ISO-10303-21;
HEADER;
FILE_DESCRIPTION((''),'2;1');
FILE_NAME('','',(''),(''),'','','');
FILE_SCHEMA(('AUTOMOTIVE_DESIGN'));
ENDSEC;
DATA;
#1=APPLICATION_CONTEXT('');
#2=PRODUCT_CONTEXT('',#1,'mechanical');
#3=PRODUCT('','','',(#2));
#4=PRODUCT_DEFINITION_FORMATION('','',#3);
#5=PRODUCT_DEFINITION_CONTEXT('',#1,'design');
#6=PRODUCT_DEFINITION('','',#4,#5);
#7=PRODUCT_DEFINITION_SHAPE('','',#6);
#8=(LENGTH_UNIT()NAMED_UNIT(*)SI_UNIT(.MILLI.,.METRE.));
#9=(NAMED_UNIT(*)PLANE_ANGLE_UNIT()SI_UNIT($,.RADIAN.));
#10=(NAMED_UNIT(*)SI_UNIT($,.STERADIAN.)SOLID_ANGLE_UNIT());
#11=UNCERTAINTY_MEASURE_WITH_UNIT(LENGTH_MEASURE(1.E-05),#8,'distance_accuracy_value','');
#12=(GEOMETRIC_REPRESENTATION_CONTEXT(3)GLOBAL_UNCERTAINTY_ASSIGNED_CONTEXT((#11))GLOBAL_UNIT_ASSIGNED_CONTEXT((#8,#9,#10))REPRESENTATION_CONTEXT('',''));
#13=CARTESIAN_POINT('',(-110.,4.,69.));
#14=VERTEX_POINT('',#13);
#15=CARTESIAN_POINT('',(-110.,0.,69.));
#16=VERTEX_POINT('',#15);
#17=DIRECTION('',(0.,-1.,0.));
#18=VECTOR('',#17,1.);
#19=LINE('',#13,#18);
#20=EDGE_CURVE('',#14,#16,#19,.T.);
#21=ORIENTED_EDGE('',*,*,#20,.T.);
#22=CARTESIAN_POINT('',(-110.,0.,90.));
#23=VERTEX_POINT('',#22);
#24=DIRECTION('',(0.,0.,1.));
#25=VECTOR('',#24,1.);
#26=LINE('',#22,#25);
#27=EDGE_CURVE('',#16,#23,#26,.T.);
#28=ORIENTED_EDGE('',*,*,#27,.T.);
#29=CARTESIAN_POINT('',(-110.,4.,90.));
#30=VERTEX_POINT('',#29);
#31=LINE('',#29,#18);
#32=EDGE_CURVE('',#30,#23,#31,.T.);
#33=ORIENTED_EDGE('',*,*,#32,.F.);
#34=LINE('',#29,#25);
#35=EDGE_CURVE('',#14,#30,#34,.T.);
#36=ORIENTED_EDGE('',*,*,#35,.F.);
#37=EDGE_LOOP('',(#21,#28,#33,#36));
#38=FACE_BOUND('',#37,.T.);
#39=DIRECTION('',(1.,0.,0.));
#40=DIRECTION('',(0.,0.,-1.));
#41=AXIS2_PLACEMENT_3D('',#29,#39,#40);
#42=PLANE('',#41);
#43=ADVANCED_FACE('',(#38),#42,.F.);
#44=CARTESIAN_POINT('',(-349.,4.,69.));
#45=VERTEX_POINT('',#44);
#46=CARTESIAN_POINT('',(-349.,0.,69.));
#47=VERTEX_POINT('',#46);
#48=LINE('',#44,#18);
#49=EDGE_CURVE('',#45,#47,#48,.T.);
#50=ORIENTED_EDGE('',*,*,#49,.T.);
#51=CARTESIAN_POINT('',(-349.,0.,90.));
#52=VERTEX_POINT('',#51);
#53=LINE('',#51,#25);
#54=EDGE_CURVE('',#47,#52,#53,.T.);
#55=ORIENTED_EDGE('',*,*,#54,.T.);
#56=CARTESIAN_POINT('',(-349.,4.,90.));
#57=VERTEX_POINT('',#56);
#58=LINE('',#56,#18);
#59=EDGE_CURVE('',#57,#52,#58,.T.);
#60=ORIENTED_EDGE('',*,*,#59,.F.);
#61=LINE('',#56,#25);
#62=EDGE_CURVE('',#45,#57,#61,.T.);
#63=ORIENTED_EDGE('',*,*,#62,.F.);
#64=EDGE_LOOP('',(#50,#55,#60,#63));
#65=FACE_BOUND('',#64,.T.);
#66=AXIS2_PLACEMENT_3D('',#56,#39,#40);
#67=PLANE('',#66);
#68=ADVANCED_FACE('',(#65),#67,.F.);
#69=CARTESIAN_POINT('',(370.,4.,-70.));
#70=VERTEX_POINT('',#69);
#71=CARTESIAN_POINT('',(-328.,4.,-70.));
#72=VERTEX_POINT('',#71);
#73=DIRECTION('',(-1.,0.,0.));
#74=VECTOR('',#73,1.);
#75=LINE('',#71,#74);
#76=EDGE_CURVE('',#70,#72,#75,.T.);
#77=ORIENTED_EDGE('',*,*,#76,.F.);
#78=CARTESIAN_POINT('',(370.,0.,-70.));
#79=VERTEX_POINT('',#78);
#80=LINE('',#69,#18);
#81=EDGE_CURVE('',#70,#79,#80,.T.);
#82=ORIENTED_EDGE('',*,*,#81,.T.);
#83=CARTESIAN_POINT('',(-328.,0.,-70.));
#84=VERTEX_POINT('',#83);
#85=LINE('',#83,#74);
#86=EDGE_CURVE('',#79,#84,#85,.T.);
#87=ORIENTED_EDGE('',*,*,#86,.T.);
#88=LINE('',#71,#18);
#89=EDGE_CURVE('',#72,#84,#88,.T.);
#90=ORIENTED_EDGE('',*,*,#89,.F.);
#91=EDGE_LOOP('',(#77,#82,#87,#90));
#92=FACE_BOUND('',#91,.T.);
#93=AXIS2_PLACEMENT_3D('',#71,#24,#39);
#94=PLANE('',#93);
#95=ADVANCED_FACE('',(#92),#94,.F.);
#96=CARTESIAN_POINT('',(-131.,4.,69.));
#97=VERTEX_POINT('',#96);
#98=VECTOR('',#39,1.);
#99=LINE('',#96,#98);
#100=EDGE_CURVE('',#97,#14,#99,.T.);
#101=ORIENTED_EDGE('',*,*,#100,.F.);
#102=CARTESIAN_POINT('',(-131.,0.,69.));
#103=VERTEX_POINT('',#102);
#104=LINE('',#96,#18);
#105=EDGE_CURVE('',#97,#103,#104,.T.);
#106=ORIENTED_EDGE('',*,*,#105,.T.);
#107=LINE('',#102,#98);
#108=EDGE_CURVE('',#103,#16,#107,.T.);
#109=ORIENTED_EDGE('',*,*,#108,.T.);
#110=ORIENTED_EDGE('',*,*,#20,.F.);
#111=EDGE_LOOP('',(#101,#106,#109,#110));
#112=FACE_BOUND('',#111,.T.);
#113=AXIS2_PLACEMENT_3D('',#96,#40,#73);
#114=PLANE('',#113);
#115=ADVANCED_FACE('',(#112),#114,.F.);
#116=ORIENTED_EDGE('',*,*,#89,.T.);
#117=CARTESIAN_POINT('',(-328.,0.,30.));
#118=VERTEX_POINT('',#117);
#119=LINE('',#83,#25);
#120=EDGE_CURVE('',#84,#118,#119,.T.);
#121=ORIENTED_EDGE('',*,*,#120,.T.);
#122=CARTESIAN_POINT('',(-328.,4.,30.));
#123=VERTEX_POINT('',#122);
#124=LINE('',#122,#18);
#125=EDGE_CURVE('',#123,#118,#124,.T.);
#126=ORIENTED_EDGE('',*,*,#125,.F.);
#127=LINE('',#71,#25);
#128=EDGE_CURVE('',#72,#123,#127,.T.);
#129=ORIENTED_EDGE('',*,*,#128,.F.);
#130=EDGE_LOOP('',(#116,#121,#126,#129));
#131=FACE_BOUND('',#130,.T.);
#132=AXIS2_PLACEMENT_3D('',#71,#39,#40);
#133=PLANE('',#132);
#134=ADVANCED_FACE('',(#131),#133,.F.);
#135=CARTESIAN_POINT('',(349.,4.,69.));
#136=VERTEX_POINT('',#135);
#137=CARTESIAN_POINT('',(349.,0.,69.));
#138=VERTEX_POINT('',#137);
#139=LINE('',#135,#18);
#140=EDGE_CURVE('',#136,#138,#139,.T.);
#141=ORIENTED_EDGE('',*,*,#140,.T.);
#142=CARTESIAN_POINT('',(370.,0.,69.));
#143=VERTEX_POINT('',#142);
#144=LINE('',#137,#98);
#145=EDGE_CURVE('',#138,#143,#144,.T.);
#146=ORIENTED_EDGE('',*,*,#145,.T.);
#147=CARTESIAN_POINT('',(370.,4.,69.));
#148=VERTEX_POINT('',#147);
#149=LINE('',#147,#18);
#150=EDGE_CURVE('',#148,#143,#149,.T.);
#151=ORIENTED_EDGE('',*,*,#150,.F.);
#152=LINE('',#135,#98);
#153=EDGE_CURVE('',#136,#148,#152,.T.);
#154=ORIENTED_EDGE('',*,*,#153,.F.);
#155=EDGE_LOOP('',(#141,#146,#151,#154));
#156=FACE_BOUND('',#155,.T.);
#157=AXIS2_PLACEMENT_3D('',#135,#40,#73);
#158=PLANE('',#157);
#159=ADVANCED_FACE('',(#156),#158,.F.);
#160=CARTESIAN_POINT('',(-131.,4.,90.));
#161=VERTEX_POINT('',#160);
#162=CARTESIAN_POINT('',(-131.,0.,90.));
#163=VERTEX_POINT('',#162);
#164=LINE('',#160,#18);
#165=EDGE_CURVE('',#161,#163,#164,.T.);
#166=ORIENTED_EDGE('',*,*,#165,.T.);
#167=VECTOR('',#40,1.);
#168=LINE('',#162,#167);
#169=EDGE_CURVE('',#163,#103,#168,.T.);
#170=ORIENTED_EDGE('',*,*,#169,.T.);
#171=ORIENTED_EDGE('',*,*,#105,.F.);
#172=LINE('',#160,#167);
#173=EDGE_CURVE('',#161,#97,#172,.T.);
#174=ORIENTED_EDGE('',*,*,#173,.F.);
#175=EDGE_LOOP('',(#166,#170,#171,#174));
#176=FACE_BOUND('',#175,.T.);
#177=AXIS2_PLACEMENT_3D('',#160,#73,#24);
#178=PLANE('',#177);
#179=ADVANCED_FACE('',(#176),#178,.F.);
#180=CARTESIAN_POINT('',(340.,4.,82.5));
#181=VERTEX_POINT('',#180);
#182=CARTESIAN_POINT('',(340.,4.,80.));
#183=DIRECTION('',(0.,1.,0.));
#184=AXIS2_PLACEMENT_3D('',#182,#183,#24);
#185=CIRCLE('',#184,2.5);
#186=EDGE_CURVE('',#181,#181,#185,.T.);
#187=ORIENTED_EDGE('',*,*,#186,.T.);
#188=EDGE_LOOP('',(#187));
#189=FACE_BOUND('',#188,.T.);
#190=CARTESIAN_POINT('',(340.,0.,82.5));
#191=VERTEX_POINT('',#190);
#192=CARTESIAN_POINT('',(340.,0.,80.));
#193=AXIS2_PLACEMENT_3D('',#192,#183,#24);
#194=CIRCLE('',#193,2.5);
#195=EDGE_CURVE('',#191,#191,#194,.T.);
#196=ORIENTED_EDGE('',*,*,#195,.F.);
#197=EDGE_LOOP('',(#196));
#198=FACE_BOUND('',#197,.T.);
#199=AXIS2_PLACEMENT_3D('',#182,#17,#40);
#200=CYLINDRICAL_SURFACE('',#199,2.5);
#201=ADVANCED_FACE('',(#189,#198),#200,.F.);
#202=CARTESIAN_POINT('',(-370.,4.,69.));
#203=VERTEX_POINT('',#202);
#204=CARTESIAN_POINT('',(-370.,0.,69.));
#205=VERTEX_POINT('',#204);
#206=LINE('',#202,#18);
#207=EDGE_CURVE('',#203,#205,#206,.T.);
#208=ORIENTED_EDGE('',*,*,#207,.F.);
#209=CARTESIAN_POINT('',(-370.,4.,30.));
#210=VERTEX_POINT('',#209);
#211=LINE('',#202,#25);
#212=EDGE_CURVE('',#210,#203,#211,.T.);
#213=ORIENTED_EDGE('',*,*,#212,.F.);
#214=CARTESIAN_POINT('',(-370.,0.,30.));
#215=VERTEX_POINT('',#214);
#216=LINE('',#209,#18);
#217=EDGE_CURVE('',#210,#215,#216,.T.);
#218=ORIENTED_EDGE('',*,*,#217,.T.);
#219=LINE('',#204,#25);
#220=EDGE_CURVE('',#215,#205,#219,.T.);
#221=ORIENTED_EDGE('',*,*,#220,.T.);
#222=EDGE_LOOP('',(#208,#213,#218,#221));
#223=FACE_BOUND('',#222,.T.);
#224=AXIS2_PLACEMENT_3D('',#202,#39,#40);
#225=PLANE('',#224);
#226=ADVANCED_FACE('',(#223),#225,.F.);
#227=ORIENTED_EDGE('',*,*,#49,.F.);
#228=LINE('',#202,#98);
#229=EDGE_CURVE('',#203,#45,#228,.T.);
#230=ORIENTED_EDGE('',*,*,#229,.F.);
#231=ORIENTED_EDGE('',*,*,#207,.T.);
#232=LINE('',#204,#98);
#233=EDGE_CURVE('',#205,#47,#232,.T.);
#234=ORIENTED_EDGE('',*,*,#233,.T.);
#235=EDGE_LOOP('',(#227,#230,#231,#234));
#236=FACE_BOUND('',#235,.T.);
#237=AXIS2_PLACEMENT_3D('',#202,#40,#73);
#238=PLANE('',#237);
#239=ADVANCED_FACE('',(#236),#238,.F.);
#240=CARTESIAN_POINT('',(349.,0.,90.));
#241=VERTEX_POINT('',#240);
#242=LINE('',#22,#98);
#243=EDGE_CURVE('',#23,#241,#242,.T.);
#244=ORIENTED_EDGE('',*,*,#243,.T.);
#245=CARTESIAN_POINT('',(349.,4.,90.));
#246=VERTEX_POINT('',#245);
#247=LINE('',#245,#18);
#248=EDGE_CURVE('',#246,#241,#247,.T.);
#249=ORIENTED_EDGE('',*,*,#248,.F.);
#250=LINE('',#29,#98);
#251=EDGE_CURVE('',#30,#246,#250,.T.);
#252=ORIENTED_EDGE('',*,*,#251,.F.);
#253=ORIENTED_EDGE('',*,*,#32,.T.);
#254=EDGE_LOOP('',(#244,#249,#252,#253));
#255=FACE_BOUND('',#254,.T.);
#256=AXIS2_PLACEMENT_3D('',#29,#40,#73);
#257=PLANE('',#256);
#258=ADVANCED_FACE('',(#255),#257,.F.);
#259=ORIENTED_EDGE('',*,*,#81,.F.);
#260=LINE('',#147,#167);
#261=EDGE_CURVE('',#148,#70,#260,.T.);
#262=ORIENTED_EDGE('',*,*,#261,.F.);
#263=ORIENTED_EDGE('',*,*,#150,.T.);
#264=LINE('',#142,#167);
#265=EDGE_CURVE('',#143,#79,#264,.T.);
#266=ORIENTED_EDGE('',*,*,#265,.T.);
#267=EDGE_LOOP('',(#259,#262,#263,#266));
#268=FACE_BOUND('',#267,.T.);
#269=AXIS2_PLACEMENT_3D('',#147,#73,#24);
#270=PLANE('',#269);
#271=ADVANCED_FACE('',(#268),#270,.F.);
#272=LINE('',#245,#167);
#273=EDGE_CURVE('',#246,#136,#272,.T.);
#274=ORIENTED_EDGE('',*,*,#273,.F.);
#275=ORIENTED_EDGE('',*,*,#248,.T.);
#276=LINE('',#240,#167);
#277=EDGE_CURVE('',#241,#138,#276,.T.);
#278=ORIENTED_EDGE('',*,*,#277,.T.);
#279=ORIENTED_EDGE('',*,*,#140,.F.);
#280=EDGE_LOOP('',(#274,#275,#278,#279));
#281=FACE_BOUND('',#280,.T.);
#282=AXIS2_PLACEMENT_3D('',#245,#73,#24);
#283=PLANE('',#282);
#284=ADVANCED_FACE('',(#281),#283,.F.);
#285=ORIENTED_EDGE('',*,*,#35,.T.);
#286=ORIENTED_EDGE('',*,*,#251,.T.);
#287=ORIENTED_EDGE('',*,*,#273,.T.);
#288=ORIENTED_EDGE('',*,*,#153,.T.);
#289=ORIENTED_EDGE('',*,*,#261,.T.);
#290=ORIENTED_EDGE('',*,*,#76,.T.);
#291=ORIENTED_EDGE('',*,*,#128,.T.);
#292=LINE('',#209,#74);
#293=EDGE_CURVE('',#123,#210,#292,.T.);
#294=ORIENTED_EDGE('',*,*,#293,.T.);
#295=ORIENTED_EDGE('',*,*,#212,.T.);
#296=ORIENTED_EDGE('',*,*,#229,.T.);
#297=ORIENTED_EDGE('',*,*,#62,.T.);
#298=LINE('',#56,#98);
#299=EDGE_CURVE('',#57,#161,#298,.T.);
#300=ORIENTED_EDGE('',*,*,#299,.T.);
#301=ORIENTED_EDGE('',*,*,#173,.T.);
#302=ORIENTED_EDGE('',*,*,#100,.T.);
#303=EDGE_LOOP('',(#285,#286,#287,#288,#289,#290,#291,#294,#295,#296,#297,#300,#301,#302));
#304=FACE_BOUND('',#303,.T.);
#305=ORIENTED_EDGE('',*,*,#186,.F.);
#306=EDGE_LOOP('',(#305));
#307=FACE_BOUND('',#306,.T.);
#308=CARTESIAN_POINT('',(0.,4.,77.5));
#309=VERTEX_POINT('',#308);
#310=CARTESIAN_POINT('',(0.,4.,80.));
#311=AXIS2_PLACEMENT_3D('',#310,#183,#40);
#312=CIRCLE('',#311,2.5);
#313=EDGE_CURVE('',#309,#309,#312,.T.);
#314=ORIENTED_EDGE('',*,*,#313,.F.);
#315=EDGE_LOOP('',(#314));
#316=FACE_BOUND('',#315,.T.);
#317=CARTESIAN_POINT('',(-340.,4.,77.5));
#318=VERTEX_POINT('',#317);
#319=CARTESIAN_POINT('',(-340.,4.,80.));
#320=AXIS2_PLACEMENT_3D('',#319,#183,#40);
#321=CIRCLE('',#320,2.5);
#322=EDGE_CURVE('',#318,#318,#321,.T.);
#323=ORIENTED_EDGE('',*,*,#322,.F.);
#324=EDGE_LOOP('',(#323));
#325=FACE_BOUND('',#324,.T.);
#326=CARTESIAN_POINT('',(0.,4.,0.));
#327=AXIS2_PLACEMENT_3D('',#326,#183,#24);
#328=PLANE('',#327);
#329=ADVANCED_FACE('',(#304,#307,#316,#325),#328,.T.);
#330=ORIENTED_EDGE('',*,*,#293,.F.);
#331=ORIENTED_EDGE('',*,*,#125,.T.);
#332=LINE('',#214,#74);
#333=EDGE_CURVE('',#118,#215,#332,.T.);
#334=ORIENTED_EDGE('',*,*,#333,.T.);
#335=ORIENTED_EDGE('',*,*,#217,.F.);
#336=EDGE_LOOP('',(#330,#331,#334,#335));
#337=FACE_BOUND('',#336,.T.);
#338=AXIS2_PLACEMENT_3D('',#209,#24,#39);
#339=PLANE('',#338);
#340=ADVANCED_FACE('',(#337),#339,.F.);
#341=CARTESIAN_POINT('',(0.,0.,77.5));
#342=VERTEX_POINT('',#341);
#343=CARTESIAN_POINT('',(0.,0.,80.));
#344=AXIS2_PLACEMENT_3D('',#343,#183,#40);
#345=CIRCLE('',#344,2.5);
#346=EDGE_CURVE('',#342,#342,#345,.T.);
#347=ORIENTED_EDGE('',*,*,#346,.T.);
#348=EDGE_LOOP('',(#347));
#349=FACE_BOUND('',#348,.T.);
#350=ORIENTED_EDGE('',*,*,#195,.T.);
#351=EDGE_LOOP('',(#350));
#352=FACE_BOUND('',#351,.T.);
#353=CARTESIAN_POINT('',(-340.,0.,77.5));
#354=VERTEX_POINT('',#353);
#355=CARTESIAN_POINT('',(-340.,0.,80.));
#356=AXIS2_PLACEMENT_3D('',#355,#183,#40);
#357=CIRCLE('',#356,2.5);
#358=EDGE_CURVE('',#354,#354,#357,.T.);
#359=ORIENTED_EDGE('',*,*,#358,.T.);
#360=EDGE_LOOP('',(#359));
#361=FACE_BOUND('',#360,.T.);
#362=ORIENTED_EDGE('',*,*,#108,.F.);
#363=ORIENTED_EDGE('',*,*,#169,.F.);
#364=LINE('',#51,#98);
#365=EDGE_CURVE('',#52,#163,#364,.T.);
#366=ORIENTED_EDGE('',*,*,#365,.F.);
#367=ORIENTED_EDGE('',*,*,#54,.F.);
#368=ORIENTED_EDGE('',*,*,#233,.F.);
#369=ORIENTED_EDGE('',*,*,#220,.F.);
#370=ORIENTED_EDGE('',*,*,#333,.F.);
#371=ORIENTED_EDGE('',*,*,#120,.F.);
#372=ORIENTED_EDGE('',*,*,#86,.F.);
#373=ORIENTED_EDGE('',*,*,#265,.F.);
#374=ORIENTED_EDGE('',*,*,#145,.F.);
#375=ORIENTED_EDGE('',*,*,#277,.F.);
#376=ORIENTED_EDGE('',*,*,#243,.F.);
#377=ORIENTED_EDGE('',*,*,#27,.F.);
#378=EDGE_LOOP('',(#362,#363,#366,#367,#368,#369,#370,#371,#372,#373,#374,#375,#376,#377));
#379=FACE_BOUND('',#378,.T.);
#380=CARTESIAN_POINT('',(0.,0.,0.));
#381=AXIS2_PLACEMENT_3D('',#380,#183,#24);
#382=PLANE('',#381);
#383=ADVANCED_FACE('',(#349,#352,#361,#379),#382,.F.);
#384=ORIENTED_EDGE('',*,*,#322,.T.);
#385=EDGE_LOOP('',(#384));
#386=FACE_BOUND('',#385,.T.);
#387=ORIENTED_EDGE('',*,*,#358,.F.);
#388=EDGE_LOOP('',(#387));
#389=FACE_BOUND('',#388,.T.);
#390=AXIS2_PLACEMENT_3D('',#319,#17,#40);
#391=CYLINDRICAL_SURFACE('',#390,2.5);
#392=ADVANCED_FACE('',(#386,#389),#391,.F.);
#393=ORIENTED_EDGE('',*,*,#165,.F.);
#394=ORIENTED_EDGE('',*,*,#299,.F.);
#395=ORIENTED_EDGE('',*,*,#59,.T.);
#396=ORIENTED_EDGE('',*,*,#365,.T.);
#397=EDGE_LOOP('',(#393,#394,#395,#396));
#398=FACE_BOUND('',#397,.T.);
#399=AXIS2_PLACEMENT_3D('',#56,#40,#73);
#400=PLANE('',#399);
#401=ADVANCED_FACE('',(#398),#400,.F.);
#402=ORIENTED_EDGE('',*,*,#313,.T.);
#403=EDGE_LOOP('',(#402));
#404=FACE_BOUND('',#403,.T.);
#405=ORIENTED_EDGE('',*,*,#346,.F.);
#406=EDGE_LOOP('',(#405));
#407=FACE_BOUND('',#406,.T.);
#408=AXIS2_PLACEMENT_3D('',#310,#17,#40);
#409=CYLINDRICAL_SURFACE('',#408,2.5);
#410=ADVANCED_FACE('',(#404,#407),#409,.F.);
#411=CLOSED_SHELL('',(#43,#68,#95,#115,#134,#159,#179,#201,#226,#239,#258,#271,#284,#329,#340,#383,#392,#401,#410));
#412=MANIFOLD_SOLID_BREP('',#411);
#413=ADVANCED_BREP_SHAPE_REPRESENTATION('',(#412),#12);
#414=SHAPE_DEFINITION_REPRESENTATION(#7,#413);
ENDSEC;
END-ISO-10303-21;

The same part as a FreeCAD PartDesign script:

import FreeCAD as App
import Part
import Sketcher
Q = App.Units.Quantity


def add_polygon(sketch, points):
    """Adds a closed chain of lines whose ends are joined by coincident constraints."""
    first, n = sketch.GeometryCount, len(points)
    for a, b in zip(points, points[1:] + points[:1]):
        sketch.addGeometry(Part.LineSegment(App.Vector(*a, 0), App.Vector(*b, 0)), False)
    for i in range(n):
        sketch.addConstraint(Sketcher.Constraint("Coincident", first + i, 2, first + (i + 1) % n, 1))

doc = App.newDocument("Part")
params = doc.addObject("Spreadsheet::Sheet", "Params")
for row, (alias, value) in enumerate([
    ("sketch1_diameter", "5 mm"),
    ("sketch1_width", "21 mm"),
    ("sketch1_width2", "218 mm"),
    ("sketch1_width3", "459 mm"),
    ("sketch1_width4", "698 mm"),
    ("pad1_length", "4 mm"),
], start=1):
    params.set(f"A{row}", alias)
    params.set(f"B{row}", "=" + value)
    params.setAlias(f"B{row}", alias)

body = doc.addObject("PartDesign::Body", "Body")

# Sketch on XZ plane
sketch1 = body.newObject("Sketcher::SketchObject", "Sketch")
sketch1.AttachmentSupport = (doc.getObject("XZ_Plane"), [""])
sketch1.MapMode = "FlatFace"
add_polygon(sketch1, [(-370, 30), (-370, 69), (-349, 69), (-349, 90), (-131, 90), (-131, 69), (-110, 69), (-110, 90), (349, 90), (349, 69), (370, 69), (370, -70), (-328, -70), (-328, 30)])  # lines 0-13
sketch1.addGeometry(Part.Circle(App.Vector(340, 80, 0), App.Vector(0, 0, 1), 2.5), False)  # 14
sketch1.addGeometry(Part.Circle(App.Vector(0, 80, 0), App.Vector(0, 0, 1), 2.5), False)  # 15
sketch1.addGeometry(Part.Circle(App.Vector(-340, 80, 0), App.Vector(0, 0, 1), 2.5), False)  # 16
sketch1.addConstraint([
    Sketcher.Constraint("Vertical", 0),
    Sketcher.Constraint("Horizontal", 1),
    Sketcher.Constraint("Vertical", 2),
    Sketcher.Constraint("Horizontal", 3),
    Sketcher.Constraint("Vertical", 4),
    Sketcher.Constraint("Horizontal", 5),
    Sketcher.Constraint("Vertical", 6),
    Sketcher.Constraint("Horizontal", 7),
    Sketcher.Constraint("Vertical", 8),
    Sketcher.Constraint("Horizontal", 9),
    Sketcher.Constraint("Vertical", 10),
    Sketcher.Constraint("Horizontal", 11),
    Sketcher.Constraint("Vertical", 12),
    Sketcher.Constraint("Horizontal", 13),
    Sketcher.Constraint("Equal", 14, 15),
    Sketcher.Constraint("Equal", 15, 16),
    Sketcher.Constraint("Symmetric", 14, 3, 16, 3, -2),
    Sketcher.Constraint("Symmetric", 2, 2, 7, 2, -2),
    Sketcher.Constraint("Symmetric", 0, 2, 9, 2, -2),
    Sketcher.Constraint("PointOnObject", 15, 3, -2),
    Sketcher.Constraint("Horizontal", 14, 3, 15, 3),
    Sketcher.Constraint("Horizontal", 1, 2, 4, 2),
    Sketcher.Constraint("Equal", 1, 5),
    Sketcher.Constraint("Equal", 9, 2),
    Sketcher.Constraint("Diameter", 14, Q("5 mm")),
    Sketcher.Constraint("DistanceX", 1, 1, 1, 2, Q("21 mm")),
    Sketcher.Constraint("DistanceX", 3, 1, 3, 2, Q("218 mm")),
    Sketcher.Constraint("DistanceX", 7, 1, 7, 2, Q("459 mm")),
    Sketcher.Constraint("DistanceX", 11, 2, 11, 1, Q("698 mm")),
    Sketcher.Constraint("DistanceY", 0, 1, 0, 2, Q("39 mm")),
    Sketcher.Constraint("DistanceY", 10, 2, 10, 1, Q("139 mm")),
    Sketcher.Constraint("DistanceX", -1, 1, 14, 3, Q("340 mm")),
    Sketcher.Constraint("DistanceY", -1, 1, 14, 3, Q("80 mm")),
    Sketcher.Constraint("DistanceY", -1, 1, 0, 2, Q("69 mm")),
])
sketch1.setExpression("Constraints[38]", "Params.sketch1_diameter")
sketch1.setExpression("Constraints[39]", "Params.sketch1_width")
sketch1.setExpression("Constraints[40]", "Params.sketch1_width2")
sketch1.setExpression("Constraints[41]", "Params.sketch1_width3")
sketch1.setExpression("Constraints[42]", "Params.sketch1_width4")
pad1 = body.newObject("PartDesign::Pad", "Pad")
pad1.Profile = sketch1
pad1.setExpression("Length", "Params.pad1_length")
pad1.Reversed = True

doc.recompute()
